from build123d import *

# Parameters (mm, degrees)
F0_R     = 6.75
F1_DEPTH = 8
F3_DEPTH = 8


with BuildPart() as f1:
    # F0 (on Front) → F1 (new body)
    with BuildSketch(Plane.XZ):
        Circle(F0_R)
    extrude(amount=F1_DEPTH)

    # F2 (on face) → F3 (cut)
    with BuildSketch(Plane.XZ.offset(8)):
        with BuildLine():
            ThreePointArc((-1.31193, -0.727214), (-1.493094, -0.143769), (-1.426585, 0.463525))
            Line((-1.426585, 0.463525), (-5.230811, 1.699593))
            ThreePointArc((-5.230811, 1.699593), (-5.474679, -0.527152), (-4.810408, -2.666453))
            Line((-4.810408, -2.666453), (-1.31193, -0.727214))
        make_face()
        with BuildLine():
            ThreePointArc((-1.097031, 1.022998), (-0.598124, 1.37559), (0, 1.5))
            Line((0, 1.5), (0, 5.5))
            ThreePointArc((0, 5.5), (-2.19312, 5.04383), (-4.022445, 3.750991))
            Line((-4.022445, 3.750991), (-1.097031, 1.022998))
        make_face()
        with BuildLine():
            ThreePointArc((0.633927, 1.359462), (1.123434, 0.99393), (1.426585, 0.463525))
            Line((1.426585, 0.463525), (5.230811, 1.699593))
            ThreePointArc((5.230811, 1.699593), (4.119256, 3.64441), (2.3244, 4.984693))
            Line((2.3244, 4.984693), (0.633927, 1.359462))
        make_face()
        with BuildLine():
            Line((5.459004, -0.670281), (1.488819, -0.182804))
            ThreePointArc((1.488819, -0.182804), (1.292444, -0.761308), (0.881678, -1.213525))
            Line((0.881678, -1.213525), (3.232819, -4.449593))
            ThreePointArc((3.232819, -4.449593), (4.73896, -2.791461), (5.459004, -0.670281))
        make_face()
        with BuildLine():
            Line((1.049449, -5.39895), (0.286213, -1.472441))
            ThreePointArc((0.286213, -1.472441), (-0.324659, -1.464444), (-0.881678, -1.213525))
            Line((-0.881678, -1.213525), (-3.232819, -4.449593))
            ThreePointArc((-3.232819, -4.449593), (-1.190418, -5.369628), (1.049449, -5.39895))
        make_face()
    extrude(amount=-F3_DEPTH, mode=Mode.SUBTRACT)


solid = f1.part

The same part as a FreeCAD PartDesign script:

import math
import FreeCAD as App
import Part
import Sketcher
from FreeCAD import Vector
Q = App.Units.Quantity

doc = App.newDocument("Part")
body = doc.addObject("PartDesign::Body", "Body")

# Sketch on XZ plane
sketch1 = body.newObject("Sketcher::SketchObject", "Sketch")
sketch1.AttachmentSupport = (doc.getObject("XZ_Plane"), [""])
sketch1.MapMode = "FlatFace"
sketch1.addGeometry(Part.Circle(Vector(0, 0, 0), Vector(0, 0, 1), 7), False)
sketch1.addConstraint([
    Sketcher.Constraint("Coincident", 0, 3, -1, 1),
    Sketcher.Constraint("Diameter", 0, 13.5),
])
pad1 = body.newObject("PartDesign::Pad", "Pad")
pad1.Profile = sketch1
pad1.Length = 8

# Sketch on XZ plane
sketch2 = body.newObject("Sketcher::SketchObject", "Sketch001")
sketch2.AttachmentSupport = (doc.getObject("XZ_Plane"), [""])
sketch2.MapMode = "FlatFace"
sketch2.AttachmentOffset = App.Placement(Vector(0, 0, 8), App.Rotation())
sketch2.addGeometry([
    Part.ArcOfCircle(Part.Circle(Vector(0, 0, 0), Vector(0, 0, 1), 1.5), math.radians(162), math.radians(209)),  # 0
    Part.LineSegment(Vector(-1.4, 0.5, 0), Vector(-5.2, 1.7, 0)),  # 1
    Part.ArcOfCircle(Part.Circle(Vector(0, 0, 0), Vector(0, 0, 1), 5.5), math.radians(162), math.radians(209)),  # 2
    Part.LineSegment(Vector(-4.8, -2.7, 0), Vector(-1.3, -0.7, 0)),  # 3
    Part.ArcOfCircle(Part.Circle(Vector(0, 0, 0), Vector(0, 0, 1), 1.5), math.radians(90), math.radians(137)),  # 4
    Part.LineSegment(Vector(0, 1.5, 0), Vector(0, 5.5, 0)),  # 5
    Part.ArcOfCircle(Part.Circle(Vector(0, 0, 0), Vector(0, 0, 1), 5.5), math.radians(90), math.radians(137)),  # 6
    Part.LineSegment(Vector(-4, 3.8, 0), Vector(-1.1, 1, 0)),  # 7
    Part.ArcOfCircle(Part.Circle(Vector(0, 0, 0), Vector(0, 0, 1), 1.5), math.radians(18), math.radians(65)),  # 8
    Part.LineSegment(Vector(1.4, 0.5, 0), Vector(5.2, 1.7, 0)),  # 9
    Part.ArcOfCircle(Part.Circle(Vector(0, 0, 0), Vector(0, 0, 1), 5.5), math.radians(18), math.radians(65)),  # 10
    Part.LineSegment(Vector(2.3, 5, 0), Vector(0.6, 1.4, 0)),  # 11
    Part.LineSegment(Vector(5.5, -0.7, 0), Vector(1.5, -0.2, 0)),  # 12
    Part.ArcOfCircle(Part.Circle(Vector(0, 0, 0), Vector(0, 0, 1), 1.5), math.radians(-54), math.radians(-7)),  # 13
    Part.LineSegment(Vector(0.9, -1.2, 0), Vector(3.2, -4.4, 0)),  # 14
    Part.ArcOfCircle(Part.Circle(Vector(0, 0, 0), Vector(0, 0, 1), 5.5), math.radians(-54), math.radians(-7)),  # 15
    Part.LineSegment(Vector(1, -5.4, 0), Vector(0.3, -1.5, 0)),  # 16
    Part.ArcOfCircle(Part.Circle(Vector(0, 0, 0), Vector(0, 0, 1), 1.5), math.radians(-126), math.radians(-79)),  # 17
    Part.LineSegment(Vector(-0.9, -1.2, 0), Vector(-3.2, -4.4, 0)),  # 18
    Part.ArcOfCircle(Part.Circle(Vector(0, 0, 0), Vector(0, 0, 1), 5.5), math.radians(-126), math.radians(-79)),  # 19
], False)
sketch2.addConstraint([
    Sketcher.Constraint("Coincident", 0, 1, 1, 1),
    Sketcher.Constraint("Coincident", 1, 2, 2, 1),
    Sketcher.Constraint("Coincident", 2, 2, 3, 1),
    Sketcher.Constraint("Coincident", 3, 2, 0, 2),
    Sketcher.Constraint("Coincident", 4, 1, 5, 1),
    Sketcher.Constraint("Coincident", 5, 2, 6, 1),
    Sketcher.Constraint("Coincident", 6, 2, 7, 1),
    Sketcher.Constraint("Coincident", 7, 2, 4, 2),
    Sketcher.Constraint("Coincident", 8, 1, 9, 1),
    Sketcher.Constraint("Coincident", 9, 2, 10, 1),
    Sketcher.Constraint("Coincident", 10, 2, 11, 1),
    Sketcher.Constraint("Coincident", 11, 2, 8, 2),
    Sketcher.Constraint("Coincident", 12, 2, 13, 2),
    Sketcher.Constraint("Coincident", 13, 1, 14, 1),
    Sketcher.Constraint("Coincident", 14, 2, 15, 1),
    Sketcher.Constraint("Coincident", 15, 2, 12, 1),
    Sketcher.Constraint("Coincident", 16, 2, 17, 2),
    Sketcher.Constraint("Coincident", 17, 1, 18, 1),
    Sketcher.Constraint("Coincident", 18, 2, 19, 1),
    Sketcher.Constraint("Coincident", 19, 2, 16, 1),
    Sketcher.Constraint("Vertical", 5),
    Sketcher.Constraint("Coincident", 0, 3, -1, 1),
    Sketcher.Constraint("Coincident", 2, 3, -1, 1),
    Sketcher.Constraint("Coincident", 4, 3, -1, 1),
    Sketcher.Constraint("Coincident", 6, 3, -1, 1),
    Sketcher.Constraint("Coincident", 8, 3, -1, 1),
    Sketcher.Constraint("Coincident", 10, 3, -1, 1),
    Sketcher.Constraint("Coincident", 13, 3, -1, 1),
    Sketcher.Constraint("Coincident", 15, 3, -1, 1),
    Sketcher.Constraint("Coincident", 17, 3, -1, 1),
    Sketcher.Constraint("Coincident", 19, 3, -1, 1),
    Sketcher.Constraint("Equal", 0, 4),
    Sketcher.Constraint("Equal", 6, 15),
    Sketcher.Constraint("Equal", 8, 17),
    Sketcher.Constraint("Equal", 15, 19),
    Sketcher.Constraint("Symmetric", 0, 1, 8, 1, -2),
    Sketcher.Constraint("Symmetric", 1, 2, 9, 2, -2),
    Sketcher.Constraint("Symmetric", 13, 1, 17, 1, -2),
    Sketcher.Constraint("PointOnObject", 4, 1, -2),
    Sketcher.Constraint("Horizontal", 14, 2, 18, 2),
    Sketcher.Constraint("Equal", 3, 7),
    Sketcher.Constraint("Radius", 2, 5.499999),
    Sketcher.Constraint("Radius", 8, 1.499998),
    Sketcher.Constraint("Angle", 1, Q("161.999999 deg")),
    Sketcher.Constraint("Angle", 3, Q("29.000012 deg")),
    Sketcher.Constraint("Angle", 7, Q("-43.000003 deg")),
    Sketcher.Constraint("Angle", 11, Q("-115 deg")),
    Sketcher.Constraint("Angle", 12, Q("173.000006 deg")),
    Sketcher.Constraint("Angle", 14, Q("-54 deg")),
    Sketcher.Constraint("Angle", 16, Q("101 deg")),
    Sketcher.Constraint("DistanceY", -1, 1, 7, 2, 1.022998),
    Sketcher.Constraint("DistanceX", 12, 2, 14, 2, 1.744),
    Sketcher.Constraint("DistanceX", -1, 1, 10, 2, 2.3244),
    Sketcher.Constraint("DistanceY", 9, 2, 10, 2, 3.2851),
    Sketcher.Constraint("DistanceY", 12, 2, 13, 3, 0.1828),
    Sketcher.Constraint("DistanceX", 3, 2, -1, 1, 1.31193),
    Sketcher.Constraint("DistanceY", 16, 2, -1, 1, 1.472441),
])
pocket1 = body.newObject("PartDesign::Pocket", "Pocket")
pocket1.Profile = sketch2
pocket1.Length = 8

doc.recompute()
